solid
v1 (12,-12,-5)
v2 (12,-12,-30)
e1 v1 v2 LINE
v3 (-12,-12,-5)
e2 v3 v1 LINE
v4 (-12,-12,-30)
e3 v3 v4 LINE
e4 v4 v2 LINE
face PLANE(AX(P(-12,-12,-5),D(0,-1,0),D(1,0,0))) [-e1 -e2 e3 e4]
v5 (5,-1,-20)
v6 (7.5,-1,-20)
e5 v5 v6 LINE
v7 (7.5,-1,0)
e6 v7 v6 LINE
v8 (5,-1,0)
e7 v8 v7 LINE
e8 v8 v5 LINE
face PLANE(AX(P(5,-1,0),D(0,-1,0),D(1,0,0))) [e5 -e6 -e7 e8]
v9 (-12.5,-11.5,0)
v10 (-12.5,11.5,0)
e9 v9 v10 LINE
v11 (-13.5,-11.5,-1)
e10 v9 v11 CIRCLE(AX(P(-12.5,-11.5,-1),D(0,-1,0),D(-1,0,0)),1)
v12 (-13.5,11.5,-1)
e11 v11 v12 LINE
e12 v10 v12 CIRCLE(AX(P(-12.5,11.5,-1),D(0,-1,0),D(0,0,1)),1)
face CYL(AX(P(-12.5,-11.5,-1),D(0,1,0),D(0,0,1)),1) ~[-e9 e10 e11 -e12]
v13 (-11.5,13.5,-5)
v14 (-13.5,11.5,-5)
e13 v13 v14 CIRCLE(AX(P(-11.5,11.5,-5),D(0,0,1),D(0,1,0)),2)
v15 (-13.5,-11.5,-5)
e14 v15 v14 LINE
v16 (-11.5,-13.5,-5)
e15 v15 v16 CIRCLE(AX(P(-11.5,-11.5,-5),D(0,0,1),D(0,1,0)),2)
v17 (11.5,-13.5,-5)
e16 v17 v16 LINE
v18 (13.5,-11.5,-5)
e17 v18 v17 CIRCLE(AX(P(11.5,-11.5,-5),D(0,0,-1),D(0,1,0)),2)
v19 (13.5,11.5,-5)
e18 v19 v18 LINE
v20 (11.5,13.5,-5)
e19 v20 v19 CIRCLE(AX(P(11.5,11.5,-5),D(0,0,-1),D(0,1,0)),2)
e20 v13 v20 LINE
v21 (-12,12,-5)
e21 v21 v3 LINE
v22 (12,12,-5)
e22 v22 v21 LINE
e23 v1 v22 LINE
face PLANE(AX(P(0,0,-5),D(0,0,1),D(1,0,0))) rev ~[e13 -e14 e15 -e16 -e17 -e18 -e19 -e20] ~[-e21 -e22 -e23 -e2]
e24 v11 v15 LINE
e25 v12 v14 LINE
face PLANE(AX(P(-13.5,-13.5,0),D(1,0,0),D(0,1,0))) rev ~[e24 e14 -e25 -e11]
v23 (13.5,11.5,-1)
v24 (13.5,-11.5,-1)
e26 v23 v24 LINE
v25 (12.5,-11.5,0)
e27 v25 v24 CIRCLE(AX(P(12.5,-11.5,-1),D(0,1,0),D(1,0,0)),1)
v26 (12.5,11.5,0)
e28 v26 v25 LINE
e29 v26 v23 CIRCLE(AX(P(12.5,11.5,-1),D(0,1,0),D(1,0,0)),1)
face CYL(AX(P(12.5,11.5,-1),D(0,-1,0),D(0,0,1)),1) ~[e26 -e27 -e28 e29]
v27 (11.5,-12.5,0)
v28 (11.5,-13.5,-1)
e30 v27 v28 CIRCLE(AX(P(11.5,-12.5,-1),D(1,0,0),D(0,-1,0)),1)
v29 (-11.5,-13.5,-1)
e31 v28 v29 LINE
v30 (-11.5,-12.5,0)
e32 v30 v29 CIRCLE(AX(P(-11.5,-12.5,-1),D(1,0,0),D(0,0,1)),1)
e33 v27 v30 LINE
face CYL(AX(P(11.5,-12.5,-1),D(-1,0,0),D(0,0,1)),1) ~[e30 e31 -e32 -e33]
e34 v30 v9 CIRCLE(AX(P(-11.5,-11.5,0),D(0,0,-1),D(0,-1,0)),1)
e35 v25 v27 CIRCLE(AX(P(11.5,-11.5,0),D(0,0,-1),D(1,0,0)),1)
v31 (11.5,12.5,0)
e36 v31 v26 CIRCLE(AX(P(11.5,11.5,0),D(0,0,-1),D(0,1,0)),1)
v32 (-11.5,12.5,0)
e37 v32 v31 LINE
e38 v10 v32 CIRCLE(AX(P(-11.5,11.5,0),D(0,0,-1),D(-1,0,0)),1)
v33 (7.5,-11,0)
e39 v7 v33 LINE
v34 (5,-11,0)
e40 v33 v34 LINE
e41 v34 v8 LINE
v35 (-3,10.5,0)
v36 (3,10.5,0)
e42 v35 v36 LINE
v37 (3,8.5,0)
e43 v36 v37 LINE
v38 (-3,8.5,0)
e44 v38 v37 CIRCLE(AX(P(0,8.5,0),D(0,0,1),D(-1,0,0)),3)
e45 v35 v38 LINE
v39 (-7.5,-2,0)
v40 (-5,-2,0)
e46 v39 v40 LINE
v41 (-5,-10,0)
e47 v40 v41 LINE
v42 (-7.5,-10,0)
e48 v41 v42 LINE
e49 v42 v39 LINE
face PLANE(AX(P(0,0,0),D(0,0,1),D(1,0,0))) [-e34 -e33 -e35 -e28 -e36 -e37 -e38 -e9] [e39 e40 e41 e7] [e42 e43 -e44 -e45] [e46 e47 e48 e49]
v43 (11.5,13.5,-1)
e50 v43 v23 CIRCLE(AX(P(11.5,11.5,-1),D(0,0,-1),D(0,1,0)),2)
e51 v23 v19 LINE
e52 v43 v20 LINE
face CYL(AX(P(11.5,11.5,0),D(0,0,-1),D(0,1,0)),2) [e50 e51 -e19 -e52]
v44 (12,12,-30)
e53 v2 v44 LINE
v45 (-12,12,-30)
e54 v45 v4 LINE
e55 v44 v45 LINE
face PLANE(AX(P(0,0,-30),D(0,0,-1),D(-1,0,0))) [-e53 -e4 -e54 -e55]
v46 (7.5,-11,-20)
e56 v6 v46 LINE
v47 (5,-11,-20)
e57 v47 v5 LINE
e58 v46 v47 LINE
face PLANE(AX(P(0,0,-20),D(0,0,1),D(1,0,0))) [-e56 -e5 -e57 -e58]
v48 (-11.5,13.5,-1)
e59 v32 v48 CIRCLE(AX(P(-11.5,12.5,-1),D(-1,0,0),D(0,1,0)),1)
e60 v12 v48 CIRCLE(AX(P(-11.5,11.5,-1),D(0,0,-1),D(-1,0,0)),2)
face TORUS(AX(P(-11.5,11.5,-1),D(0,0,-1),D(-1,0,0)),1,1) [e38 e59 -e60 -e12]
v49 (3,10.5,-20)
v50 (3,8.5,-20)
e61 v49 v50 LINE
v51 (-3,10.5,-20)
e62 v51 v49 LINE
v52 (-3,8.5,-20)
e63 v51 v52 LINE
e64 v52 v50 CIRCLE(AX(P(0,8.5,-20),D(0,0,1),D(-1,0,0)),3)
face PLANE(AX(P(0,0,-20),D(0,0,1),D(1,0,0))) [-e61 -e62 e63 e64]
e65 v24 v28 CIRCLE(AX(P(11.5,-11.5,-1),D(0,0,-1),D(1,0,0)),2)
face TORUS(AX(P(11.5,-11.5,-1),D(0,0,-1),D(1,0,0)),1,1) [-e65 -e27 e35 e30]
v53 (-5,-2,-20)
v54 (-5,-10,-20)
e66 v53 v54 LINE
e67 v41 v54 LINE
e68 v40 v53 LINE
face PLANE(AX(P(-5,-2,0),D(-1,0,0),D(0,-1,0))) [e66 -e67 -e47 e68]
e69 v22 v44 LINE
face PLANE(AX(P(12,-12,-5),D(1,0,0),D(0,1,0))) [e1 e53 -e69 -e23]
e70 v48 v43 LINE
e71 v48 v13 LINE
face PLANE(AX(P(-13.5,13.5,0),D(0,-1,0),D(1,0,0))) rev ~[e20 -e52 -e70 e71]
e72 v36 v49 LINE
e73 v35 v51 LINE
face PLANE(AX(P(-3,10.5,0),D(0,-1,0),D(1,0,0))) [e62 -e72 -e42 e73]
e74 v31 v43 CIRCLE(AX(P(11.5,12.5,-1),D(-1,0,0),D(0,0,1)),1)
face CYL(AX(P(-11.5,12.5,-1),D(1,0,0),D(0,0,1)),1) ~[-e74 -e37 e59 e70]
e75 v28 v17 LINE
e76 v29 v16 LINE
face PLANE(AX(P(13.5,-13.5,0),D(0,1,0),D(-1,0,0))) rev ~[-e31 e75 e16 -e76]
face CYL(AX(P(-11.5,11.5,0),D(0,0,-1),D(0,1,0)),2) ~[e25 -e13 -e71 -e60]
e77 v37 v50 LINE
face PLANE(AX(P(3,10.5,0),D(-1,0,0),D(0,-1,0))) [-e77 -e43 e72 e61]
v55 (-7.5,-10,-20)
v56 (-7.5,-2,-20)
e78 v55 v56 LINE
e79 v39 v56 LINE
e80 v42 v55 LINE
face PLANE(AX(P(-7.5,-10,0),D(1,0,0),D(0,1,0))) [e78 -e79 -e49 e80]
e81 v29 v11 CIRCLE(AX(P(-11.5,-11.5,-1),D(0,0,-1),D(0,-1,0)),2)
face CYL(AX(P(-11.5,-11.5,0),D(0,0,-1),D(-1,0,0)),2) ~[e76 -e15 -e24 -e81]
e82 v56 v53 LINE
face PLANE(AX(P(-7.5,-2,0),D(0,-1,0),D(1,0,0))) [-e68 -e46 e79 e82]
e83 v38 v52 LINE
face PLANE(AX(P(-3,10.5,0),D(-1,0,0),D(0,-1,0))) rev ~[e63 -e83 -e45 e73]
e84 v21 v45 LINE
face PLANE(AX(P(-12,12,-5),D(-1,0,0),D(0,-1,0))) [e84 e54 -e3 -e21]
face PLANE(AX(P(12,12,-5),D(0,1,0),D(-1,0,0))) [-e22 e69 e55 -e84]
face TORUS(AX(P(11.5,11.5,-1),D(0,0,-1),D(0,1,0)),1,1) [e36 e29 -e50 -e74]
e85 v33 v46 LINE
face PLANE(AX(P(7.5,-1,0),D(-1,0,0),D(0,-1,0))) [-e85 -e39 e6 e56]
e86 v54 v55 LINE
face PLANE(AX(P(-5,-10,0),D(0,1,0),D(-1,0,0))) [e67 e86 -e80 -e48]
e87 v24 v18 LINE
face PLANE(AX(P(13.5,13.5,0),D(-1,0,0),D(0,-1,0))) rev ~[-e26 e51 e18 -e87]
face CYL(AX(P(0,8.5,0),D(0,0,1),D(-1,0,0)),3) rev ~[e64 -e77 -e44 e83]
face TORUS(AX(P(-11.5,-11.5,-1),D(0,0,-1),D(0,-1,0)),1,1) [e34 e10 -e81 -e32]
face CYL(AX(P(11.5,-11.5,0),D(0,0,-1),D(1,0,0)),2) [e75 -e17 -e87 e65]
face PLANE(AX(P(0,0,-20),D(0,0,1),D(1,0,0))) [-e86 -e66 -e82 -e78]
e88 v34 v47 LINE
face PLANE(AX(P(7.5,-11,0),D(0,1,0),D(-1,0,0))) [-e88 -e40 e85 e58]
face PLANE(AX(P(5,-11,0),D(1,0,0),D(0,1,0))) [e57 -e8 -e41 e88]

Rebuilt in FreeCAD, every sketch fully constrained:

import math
import FreeCAD as App
import Part
import Sketcher

V = App.Vector
Q = App.Units.Quantity


def edges_at(feature, points):
    """Names of the edges that pass closest to the given points."""
    edges = feature.Shape.Edges
    near = lambda p: min(range(len(edges)), key=lambda i: edges[i].distToShape(Part.Vertex(*p))[0])
    return sorted({f"Edge{near(p) + 1}" for p in points})


def add_polygon(sketch, points):
    """Adds a closed chain of lines whose ends are joined by coincident constraints."""
    first, n = sketch.GeometryCount, len(points)
    for a, b in zip(points, points[1:] + points[:1]):
        sketch.addGeometry(Part.LineSegment(App.Vector(*a, 0), App.Vector(*b, 0)), False)
    for i in range(n):
        sketch.addConstraint(Sketcher.Constraint("Coincident", first + i, 2, first + (i + 1) % n, 1))

doc = App.newDocument("Part")
body = doc.addObject("PartDesign::Body", "Body")

# Sketch on XY plane
sketch1 = body.newObject("Sketcher::SketchObject", "Sketch")
sketch1.AttachmentSupport = (doc.getObject("XY_Plane"), [""])
sketch1.MapMode = "FlatFace"
add_polygon(sketch1, [(14, 14), (-14, 14), (-14, -14), (14, -14)])  # lines 0-3
sketch1.addConstraint(Sketcher.Constraint("Horizontal", 0))
sketch1.addConstraint(Sketcher.Constraint("Vertical", 1))
sketch1.addConstraint(Sketcher.Constraint("Horizontal", 2))
sketch1.addConstraint(Sketcher.Constraint("Vertical", 3))
sketch1.addConstraint(Sketcher.Constraint("Symmetric", 0, 2, 2, 2, -1, 1))
sketch1.addConstraint(Sketcher.Constraint("Equal", 2, 1))
sketch1.addConstraint(Sketcher.Constraint("DistanceX", 0, 2, 0, 1, Q("27 mm")))
pad1 = body.newObject("PartDesign::Pad", "Pad")
pad1.Profile = sketch1
pad1.Length = 5
pad1.Reversed = True

# Sketch on XY plane
sketch2 = body.newObject("Sketcher::SketchObject", "Sketch001")
sketch2.AttachmentSupport = (doc.getObject("XY_Plane"), [""])
sketch2.MapMode = "FlatFace"
sketch2.AttachmentOffset = App.Placement(V(0, 0, -5), App.Rotation())
add_polygon(sketch2, [(-12, 12), (12, 12), (12, -12), (-12, -12)])  # lines 0-3
sketch2.addConstraint(Sketcher.Constraint("Horizontal", 0))
sketch2.addConstraint(Sketcher.Constraint("Vertical", 1))
sketch2.addConstraint(Sketcher.Constraint("Horizontal", 2))
sketch2.addConstraint(Sketcher.Constraint("Vertical", 3))
sketch2.addConstraint(Sketcher.Constraint("Symmetric", 0, 2, 2, 2, -1, 1))
sketch2.addConstraint(Sketcher.Constraint("Equal", 2, 1))
sketch2.addConstraint(Sketcher.Constraint("DistanceX", 0, 1, 0, 2, Q("24 mm")))
pad2 = body.newObject("PartDesign::Pad", "Pad001")
pad2.Profile = sketch2
pad2.Length = 25
pad2.Reversed = True

# Sketch on XY plane
sketch3 = body.newObject("Sketcher::SketchObject", "Sketch002")
sketch3.AttachmentSupport = (doc.getObject("XY_Plane"), [""])
sketch3.MapMode = "FlatFace"
sketch3.addGeometry(Part.LineSegment(V(3, 10.5, 0), V(-3, 10.5, 0)), False)  # 0
sketch3.addGeometry(Part.LineSegment(V(-3, 10.5, 0), V(-3, 8.5, 0)), False)  # 1
sketch3.addGeometry(Part.ArcOfCircle(Part.Circle(V(0, 8.5, 0), V(0, 0, 1), 3), math.radians(180), math.radians(360)), False)  # 2
sketch3.addGeometry(Part.LineSegment(V(3, 8.5, 0), V(3, 10.5, 0)), False)  # 3
add_polygon(sketch3, [(-5, -2), (-7.5, -2), (-7.5, -10), (-5, -10)])  # lines 4-7
add_polygon(sketch3, [(7.5, -1), (5, -1), (5, -11), (7.5, -11)])  # lines 8-11
sketch3.addConstraint(Sketcher.Constraint("Coincident", 0, 2, 1, 1))
sketch3.addConstraint(Sketcher.Constraint("Tangent", 1, 2, 2, 1))
sketch3.addConstraint(Sketcher.Constraint("Tangent", 2, 2, 3, 1))
sketch3.addConstraint(Sketcher.Constraint("Coincident", 3, 2, 0, 1))
sketch3.addConstraint(Sketcher.Constraint("Horizontal", 0))
sketch3.addConstraint(Sketcher.Constraint("Vertical", 1))
sketch3.addConstraint(Sketcher.Constraint("Vertical", 3))
sketch3.addConstraint(Sketcher.Constraint("Horizontal", 4))
sketch3.addConstraint(Sketcher.Constraint("Vertical", 5))
sketch3.addConstraint(Sketcher.Constraint("Horizontal", 6))
sketch3.addConstraint(Sketcher.Constraint("Vertical", 7))
sketch3.addConstraint(Sketcher.Constraint("Horizontal", 8))
sketch3.addConstraint(Sketcher.Constraint("Vertical", 9))
sketch3.addConstraint(Sketcher.Constraint("Horizontal", 10))
sketch3.addConstraint(Sketcher.Constraint("Vertical", 11))
sketch3.addConstraint(Sketcher.Constraint("PointOnObject", 2, 3, -2))
sketch3.addConstraint(Sketcher.Constraint("Equal", 6, 8))
sketch3.addConstraint(Sketcher.Constraint("Radius", 2, Q("3 mm")))
sketch3.addConstraint(Sketcher.Constraint("DistanceY", 1, 2, 1, 1, Q("2 mm")))
sketch3.addConstraint(Sketcher.Constraint("DistanceY", 5, 2, 5, 1, Q("8 mm")))
sketch3.addConstraint(Sketcher.Constraint("DistanceY", 9, 2, 9, 1, Q("10 mm")))
sketch3.addConstraint(Sketcher.Constraint("DistanceX", 4, 2, 4, 1, Q("2.5 mm")))
sketch3.addConstraint(Sketcher.Constraint("DistanceY", 4, 2, -1, 1, Q("2 mm")))
sketch3.addConstraint(Sketcher.Constraint("DistanceX", 6, 2, -1, 1, Q("5 mm")))
sketch3.addConstraint(Sketcher.Constraint("DistanceX", -1, 1, 8, 2, Q("5 mm")))
sketch3.addConstraint(Sketcher.Constraint("DistanceY", 8, 2, -1, 1, Q("1 mm")))
sketch3.addConstraint(Sketcher.Constraint("DistanceY", -1, 1, 2, 3, Q("8.5 mm")))
pocket1 = body.newObject("PartDesign::Pocket", "Pocket")
pocket1.Profile = sketch3
pocket1.Length = 20
doc.recompute()

fillet = body.newObject("PartDesign::Fillet", "Fillet")
fillet.Base = (pocket1, edges_at(pocket1, [
    (13.5, 13.5, -2.5),
    (13.5, -13.5, -2.5),
    (-13.5, -13.5, -2.5),
    (-13.5, 13.5, -2.5),
]))
fillet.Radius = 2
doc.recompute()

fillet2 = body.newObject("PartDesign::Fillet", "Fillet001")
fillet2.Base = (fillet, edges_at(fillet, [
    (12.914, -12.914, 0),
    (0, -13.5, 0),
    (-12.914, -12.914, 0),
    (-13.5, 0, 0),
    (-12.914, 12.914, 0),
    (0, 13.5, 0),
    (12.914, 12.914, 0),
    (13.5, 0, 0),
]))
fillet2.Radius = 1

doc.recompute()
